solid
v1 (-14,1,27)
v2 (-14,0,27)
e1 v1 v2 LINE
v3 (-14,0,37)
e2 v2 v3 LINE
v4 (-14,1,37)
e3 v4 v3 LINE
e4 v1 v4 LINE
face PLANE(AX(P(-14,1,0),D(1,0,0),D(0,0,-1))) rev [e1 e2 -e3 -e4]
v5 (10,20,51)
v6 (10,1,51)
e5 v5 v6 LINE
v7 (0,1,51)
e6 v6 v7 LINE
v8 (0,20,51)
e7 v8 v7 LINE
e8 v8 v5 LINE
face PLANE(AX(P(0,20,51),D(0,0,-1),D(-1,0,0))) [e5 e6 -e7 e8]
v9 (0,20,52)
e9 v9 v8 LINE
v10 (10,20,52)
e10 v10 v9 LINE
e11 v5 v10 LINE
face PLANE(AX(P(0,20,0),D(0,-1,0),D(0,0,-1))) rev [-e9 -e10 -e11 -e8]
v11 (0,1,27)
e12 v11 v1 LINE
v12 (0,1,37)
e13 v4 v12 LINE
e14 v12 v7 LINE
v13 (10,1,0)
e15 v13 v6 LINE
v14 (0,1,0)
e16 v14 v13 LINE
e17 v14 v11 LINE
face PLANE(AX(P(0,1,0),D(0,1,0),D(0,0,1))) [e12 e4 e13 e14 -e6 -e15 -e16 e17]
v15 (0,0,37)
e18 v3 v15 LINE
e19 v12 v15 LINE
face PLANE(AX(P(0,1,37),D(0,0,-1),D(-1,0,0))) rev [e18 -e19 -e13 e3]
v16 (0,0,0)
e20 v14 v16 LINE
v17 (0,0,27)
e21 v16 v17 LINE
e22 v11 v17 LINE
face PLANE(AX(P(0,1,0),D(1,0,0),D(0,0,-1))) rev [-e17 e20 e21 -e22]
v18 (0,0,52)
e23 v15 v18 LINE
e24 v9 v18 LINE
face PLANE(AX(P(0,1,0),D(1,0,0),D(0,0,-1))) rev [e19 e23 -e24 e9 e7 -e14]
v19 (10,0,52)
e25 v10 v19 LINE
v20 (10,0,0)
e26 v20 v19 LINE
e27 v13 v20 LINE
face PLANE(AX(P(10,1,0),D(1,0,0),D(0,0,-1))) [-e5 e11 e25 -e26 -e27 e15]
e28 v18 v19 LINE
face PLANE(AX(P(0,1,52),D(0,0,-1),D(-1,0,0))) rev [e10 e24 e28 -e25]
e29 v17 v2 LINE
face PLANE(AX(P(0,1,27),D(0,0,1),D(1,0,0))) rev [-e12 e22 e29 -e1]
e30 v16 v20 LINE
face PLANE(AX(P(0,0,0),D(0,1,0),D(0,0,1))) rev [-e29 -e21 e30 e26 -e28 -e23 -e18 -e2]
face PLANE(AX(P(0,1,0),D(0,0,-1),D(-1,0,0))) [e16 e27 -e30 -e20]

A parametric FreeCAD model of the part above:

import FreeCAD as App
import Part
import Sketcher

doc = App.newDocument("Part")
body = doc.addObject("PartDesign::Body", "Body")

sketch1 = doc.addObject("Sketcher::SketchObject", "Sketch")
body.addObject(sketch1)
sketch1.AttachmentSupport = (doc.XZ_Plane, [""])
sketch1.MapMode = "FlatFace"
sketch1.addGeometry(Part.LineSegment(App.Vector(0, 52, 0), App.Vector(10, 52, 0)), False)
sketch1.addGeometry(Part.LineSegment(App.Vector(10, 52, 0), App.Vector(10, 0, 0)), False)
sketch1.addGeometry(Part.LineSegment(App.Vector(10, 0, 0), App.Vector(0, 0, 0)), False)
sketch1.addGeometry(Part.LineSegment(App.Vector(0, 0, 0), App.Vector(0, 27, 0)), False)
sketch1.addGeometry(Part.LineSegment(App.Vector(0, 27, 0), App.Vector(-14, 27, 0)), False)
sketch1.addGeometry(Part.LineSegment(App.Vector(-14, 27, 0), App.Vector(-14, 37, 0)), False)
sketch1.addGeometry(Part.LineSegment(App.Vector(-14, 37, 0), App.Vector(0, 37, 0)), False)
sketch1.addGeometry(Part.LineSegment(App.Vector(0, 37, 0), App.Vector(0, 52, 0)), False)
sketch1.addConstraint(Sketcher.Constraint("Coincident", 0, 2, 1, 1))
sketch1.addConstraint(Sketcher.Constraint("Coincident", 1, 2, 2, 1))
sketch1.addConstraint(Sketcher.Constraint("Coincident", 2, 2, 3, 1))
sketch1.addConstraint(Sketcher.Constraint("Coincident", 3, 2, 4, 1))
sketch1.addConstraint(Sketcher.Constraint("Coincident", 4, 2, 5, 1))
sketch1.addConstraint(Sketcher.Constraint("Coincident", 5, 2, 6, 1))
sketch1.addConstraint(Sketcher.Constraint("Coincident", 6, 2, 7, 1))
sketch1.addConstraint(Sketcher.Constraint("Coincident", 7, 2, 0, 1))
sketch1.addConstraint(Sketcher.Constraint("Horizontal", 0))
sketch1.addConstraint(Sketcher.Constraint("Vertical", 1))
sketch1.addConstraint(Sketcher.Constraint("Horizontal", 2))
sketch1.addConstraint(Sketcher.Constraint("Vertical", 3))
sketch1.addConstraint(Sketcher.Constraint("Horizontal", 4))
sketch1.addConstraint(Sketcher.Constraint("Vertical", 5))
sketch1.addConstraint(Sketcher.Constraint("Horizontal", 6))
sketch1.addConstraint(Sketcher.Constraint("Vertical", 7))
sketch1.addConstraint(Sketcher.Constraint("Coincident", 2, 2, -1, 1))
sketch1.addConstraint(Sketcher.Constraint("PointOnObject", 6, 2, -2))
sketch1.addConstraint(Sketcher.Constraint("Equal", 2, 5))
sketch1.addConstraint(Sketcher.Constraint("DistanceX", 0, 1, 0, 2, 10.0))
sketch1.addConstraint(Sketcher.Constraint("DistanceX", 4, 2, 4, 1, 14.0))
sketch1.addConstraint(Sketcher.Constraint("DistanceY", 1, 2, 1, 1, 52.0))
sketch1.addConstraint(Sketcher.Constraint("DistanceY", 3, 1, 3, 2, 27.0))
pad1 = doc.addObject("PartDesign::Pad", "Pad")
body.addObject(pad1)
pad1.Profile = sketch1
pad1.Length = 1
pad1.Reversed = True

sketch2 = doc.addObject("Sketcher::SketchObject", "Sketch001")
body.addObject(sketch2)
sketch2.AttachmentSupport = (doc.XZ_Plane, [""])
sketch2.MapMode = "FlatFace"
sketch2.addGeometry(Part.LineSegment(App.Vector(0, 52, 0), App.Vector(0, 51, 0)), False)
sketch2.addGeometry(Part.LineSegment(App.Vector(0, 51, 0), App.Vector(10, 51, 0)), False)
sketch2.addGeometry(Part.LineSegment(App.Vector(10, 51, 0), App.Vector(10, 52, 0)), False)
sketch2.addGeometry(Part.LineSegment(App.Vector(10, 52, 0), App.Vector(0, 52, 0)), False)
sketch2.addConstraint(Sketcher.Constraint("Coincident", 0, 2, 1, 1))
sketch2.addConstraint(Sketcher.Constraint("Coincident", 1, 2, 2, 1))
sketch2.addConstraint(Sketcher.Constraint("Coincident", 2, 2, 3, 1))
sketch2.addConstraint(Sketcher.Constraint("Coincident", 3, 2, 0, 1))
sketch2.addConstraint(Sketcher.Constraint("Vertical", 0))
sketch2.addConstraint(Sketcher.Constraint("Horizontal", 1))
sketch2.addConstraint(Sketcher.Constraint("Vertical", 2))
sketch2.addConstraint(Sketcher.Constraint("Horizontal", 3))
sketch2.addConstraint(Sketcher.Constraint("PointOnObject", 0, 2, -2))
sketch2.addConstraint(Sketcher.Constraint("DistanceX", 1, 1, 1, 2, 10.0))
sketch2.addConstraint(Sketcher.Constraint("DistanceY", 0, 2, 0, 1, 1.0))
sketch2.addConstraint(Sketcher.Constraint("DistanceY", -1, 1, 0, 2, 51.0))
pad2 = doc.addObject("PartDesign::Pad", "Pad001")
body.addObject(pad2)
pad2.Profile = sketch2
pad2.Length = 20
pad2.Reversed = True

doc.recompute()
